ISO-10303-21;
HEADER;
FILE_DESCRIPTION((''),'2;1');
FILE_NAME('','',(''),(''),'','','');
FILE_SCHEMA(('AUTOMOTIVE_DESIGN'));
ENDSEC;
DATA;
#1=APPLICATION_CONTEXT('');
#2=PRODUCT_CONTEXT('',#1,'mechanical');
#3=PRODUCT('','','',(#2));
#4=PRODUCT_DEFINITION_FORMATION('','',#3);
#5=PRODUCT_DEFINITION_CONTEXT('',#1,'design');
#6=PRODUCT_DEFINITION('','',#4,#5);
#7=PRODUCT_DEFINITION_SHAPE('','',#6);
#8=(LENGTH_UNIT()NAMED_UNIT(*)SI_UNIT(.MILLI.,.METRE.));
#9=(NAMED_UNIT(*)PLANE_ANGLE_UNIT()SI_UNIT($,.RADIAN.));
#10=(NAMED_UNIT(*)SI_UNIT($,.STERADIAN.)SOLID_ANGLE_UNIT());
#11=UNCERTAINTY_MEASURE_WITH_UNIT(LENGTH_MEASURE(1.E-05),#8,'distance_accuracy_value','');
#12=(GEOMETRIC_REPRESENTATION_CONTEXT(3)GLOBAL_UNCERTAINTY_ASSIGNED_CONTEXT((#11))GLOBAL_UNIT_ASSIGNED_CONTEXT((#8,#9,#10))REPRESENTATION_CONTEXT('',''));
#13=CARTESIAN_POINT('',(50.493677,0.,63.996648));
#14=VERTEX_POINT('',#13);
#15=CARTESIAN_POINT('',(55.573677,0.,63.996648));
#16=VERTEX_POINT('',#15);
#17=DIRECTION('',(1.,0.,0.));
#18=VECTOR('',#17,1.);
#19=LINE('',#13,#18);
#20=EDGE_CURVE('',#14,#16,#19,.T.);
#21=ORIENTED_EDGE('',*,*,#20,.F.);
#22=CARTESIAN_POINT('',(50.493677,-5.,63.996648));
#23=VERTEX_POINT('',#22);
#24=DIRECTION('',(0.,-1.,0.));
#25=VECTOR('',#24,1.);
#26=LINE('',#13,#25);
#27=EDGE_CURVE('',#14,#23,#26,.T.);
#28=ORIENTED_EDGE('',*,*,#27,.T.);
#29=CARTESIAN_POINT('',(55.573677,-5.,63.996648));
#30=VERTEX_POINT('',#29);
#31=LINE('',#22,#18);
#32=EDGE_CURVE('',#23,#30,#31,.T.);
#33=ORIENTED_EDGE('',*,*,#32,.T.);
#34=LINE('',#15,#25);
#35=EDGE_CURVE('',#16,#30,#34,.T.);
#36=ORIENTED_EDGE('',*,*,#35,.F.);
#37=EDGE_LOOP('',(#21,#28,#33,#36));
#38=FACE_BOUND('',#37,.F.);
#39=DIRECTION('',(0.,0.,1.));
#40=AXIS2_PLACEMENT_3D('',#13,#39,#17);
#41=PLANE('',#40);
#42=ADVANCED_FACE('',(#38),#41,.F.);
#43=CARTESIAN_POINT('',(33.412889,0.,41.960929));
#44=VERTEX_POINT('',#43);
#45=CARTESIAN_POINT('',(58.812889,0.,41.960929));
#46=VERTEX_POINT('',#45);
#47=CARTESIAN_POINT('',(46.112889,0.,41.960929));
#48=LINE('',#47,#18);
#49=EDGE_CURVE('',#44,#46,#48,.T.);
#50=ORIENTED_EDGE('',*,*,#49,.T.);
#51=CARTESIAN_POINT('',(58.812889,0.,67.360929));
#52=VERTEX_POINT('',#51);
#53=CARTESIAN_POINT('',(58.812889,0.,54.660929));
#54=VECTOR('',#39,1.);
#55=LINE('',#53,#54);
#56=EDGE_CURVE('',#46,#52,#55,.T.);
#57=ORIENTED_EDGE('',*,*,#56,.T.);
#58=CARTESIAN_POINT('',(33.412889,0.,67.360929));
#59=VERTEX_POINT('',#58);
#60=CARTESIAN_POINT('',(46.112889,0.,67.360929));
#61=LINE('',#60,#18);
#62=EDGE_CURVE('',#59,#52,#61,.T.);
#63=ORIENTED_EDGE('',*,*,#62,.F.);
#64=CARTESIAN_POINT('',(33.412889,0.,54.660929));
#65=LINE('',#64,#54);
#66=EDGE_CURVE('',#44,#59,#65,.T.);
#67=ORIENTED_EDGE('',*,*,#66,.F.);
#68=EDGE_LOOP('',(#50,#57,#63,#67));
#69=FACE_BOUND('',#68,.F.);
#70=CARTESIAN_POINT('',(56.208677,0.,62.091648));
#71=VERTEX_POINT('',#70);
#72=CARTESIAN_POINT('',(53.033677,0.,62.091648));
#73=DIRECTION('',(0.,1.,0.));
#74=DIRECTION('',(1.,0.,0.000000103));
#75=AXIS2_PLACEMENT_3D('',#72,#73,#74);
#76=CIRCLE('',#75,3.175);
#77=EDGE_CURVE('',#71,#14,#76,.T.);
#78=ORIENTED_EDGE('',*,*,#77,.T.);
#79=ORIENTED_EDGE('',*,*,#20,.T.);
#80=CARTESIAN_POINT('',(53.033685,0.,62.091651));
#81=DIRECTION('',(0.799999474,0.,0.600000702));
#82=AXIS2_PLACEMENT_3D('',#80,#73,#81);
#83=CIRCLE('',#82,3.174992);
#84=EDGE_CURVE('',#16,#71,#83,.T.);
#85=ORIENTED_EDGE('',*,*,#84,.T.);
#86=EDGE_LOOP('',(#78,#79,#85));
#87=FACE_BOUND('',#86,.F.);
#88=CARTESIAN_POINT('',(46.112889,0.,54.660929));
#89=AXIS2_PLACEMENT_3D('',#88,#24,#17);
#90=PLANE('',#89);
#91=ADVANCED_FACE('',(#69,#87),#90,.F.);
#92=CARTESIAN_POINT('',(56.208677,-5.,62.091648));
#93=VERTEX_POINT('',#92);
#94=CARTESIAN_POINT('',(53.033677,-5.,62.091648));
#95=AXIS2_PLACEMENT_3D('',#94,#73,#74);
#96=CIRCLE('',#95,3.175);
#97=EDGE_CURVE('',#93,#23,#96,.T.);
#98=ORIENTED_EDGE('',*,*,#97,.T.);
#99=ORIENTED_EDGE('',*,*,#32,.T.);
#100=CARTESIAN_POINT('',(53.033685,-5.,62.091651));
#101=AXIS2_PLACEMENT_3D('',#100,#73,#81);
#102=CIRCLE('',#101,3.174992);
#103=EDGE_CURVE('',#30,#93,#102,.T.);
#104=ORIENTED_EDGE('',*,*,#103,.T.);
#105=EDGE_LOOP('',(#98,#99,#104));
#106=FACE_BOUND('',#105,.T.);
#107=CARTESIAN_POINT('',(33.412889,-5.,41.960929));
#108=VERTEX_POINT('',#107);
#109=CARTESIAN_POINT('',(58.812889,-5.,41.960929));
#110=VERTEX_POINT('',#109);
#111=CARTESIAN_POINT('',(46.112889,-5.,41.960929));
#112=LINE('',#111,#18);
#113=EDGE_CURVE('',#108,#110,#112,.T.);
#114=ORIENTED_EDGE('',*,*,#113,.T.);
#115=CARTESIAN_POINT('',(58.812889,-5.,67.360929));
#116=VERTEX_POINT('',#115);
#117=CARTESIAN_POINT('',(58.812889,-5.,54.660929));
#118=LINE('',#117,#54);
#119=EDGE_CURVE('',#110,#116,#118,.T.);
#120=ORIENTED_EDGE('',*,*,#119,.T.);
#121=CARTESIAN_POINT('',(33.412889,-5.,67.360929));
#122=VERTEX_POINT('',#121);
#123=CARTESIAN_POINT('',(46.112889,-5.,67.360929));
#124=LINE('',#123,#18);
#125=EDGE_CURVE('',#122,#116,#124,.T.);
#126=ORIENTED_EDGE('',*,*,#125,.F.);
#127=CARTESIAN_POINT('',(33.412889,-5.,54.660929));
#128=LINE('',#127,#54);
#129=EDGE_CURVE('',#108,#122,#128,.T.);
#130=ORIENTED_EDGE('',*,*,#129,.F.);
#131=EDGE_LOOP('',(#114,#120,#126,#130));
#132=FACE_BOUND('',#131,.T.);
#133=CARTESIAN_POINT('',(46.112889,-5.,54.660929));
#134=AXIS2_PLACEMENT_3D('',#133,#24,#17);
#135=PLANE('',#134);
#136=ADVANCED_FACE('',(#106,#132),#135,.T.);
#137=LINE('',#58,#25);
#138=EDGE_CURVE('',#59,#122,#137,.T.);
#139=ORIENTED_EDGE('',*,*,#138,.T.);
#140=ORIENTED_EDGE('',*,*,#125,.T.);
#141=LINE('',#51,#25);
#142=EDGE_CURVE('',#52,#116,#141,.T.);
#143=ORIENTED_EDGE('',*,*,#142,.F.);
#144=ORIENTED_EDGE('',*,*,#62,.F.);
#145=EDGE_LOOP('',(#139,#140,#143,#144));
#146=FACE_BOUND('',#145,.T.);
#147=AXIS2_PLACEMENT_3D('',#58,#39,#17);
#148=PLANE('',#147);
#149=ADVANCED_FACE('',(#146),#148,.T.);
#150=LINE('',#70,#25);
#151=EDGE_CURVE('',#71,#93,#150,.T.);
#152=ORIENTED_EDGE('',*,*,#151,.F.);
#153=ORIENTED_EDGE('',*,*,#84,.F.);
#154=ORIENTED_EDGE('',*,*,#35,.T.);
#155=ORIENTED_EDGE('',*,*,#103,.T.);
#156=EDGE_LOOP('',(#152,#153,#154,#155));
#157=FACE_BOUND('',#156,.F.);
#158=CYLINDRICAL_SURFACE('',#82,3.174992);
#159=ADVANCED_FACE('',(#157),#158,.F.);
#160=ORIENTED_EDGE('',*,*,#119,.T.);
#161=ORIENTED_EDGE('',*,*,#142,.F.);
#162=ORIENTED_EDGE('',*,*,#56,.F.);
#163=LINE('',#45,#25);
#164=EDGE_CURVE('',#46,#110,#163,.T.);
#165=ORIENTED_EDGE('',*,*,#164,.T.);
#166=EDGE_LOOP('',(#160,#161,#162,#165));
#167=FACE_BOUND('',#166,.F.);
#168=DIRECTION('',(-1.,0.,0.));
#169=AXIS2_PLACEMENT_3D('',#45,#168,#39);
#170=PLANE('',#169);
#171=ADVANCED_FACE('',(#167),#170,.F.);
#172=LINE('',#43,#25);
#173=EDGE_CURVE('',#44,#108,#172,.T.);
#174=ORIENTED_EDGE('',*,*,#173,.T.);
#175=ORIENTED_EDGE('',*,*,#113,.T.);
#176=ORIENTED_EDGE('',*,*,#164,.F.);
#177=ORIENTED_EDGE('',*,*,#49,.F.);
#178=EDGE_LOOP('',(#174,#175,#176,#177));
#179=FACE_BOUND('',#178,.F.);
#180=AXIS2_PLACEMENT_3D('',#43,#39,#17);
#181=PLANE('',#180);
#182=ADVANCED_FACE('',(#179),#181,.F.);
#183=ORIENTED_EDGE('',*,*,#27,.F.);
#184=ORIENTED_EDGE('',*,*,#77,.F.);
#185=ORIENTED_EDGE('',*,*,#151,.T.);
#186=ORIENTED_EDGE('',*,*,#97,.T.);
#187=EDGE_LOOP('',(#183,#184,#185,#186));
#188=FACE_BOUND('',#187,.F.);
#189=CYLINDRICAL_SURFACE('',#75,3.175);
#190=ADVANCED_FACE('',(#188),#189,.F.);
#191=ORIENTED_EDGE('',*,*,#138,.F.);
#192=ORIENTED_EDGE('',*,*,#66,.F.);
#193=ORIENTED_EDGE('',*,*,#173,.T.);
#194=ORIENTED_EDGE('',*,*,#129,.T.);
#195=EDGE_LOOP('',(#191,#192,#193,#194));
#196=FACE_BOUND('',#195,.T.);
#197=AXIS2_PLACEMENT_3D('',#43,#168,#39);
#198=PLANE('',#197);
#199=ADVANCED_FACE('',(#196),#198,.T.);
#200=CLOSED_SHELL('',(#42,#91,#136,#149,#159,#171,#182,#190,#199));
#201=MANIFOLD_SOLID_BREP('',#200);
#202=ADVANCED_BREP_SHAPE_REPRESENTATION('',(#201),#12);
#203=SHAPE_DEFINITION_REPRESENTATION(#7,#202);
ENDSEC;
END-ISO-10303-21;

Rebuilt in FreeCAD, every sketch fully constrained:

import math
import FreeCAD as App
import Part
import Sketcher
from FreeCAD import Vector
Q = App.Units.Quantity


def add_polygon(sketch, points):
    """Adds a closed chain of lines whose ends are joined by coincident constraints."""
    first, n = sketch.GeometryCount, len(points)
    for a, b in zip(points, points[1:] + points[:1]):
        sketch.addGeometry(Part.LineSegment(App.Vector(*a, 0), App.Vector(*b, 0)), False)
    for i in range(n):
        sketch.addConstraint(Sketcher.Constraint("Coincident", first + i, 2, first + (i + 1) % n, 1))

doc = App.newDocument("Part")
body = doc.addObject("PartDesign::Body", "Body")

# Sketch on XZ plane
sketch1 = body.newObject("Sketcher::SketchObject", "Sketch")
sketch1.AttachmentSupport = (doc.getObject("XZ_Plane"), [""])
sketch1.MapMode = "FlatFace"
add_polygon(sketch1, [(33.4, 67.4), (33.4, 42), (58.8, 42), (58.8, 67.4)])  # lines 0-3
sketch1.addGeometry(Part.ArcOfCircle(Part.Circle(Vector(53, 62.1, 0), Vector(0, 0, 1), 3.2), math.radians(143), math.radians(360)), False)  # 4
sketch1.addGeometry(Part.LineSegment(Vector(50.5, 64, 0), Vector(55.6, 64, 0)), False)  # 5
sketch1.addGeometry(Part.ArcOfCircle(Part.Circle(Vector(53, 62.1, 0), Vector(0, 0, 1), 3.2), math.radians(0), math.radians(37)), False)  # 6
sketch1.addConstraint(Sketcher.Constraint("Coincident", 4, 1, 5, 1))
sketch1.addConstraint(Sketcher.Constraint("Coincident", 5, 2, 6, 2))
sketch1.addConstraint(Sketcher.Constraint("Tangent", 6, 1, 4, 2))
sketch1.addConstraint(Sketcher.Constraint("Vertical", 0))
sketch1.addConstraint(Sketcher.Constraint("Horizontal", 1))
sketch1.addConstraint(Sketcher.Constraint("Vertical", 2))
sketch1.addConstraint(Sketcher.Constraint("Horizontal", 3))
sketch1.addConstraint(Sketcher.Constraint("Horizontal", 5))
sketch1.addConstraint(Sketcher.Constraint("Horizontal", 4, 3, 6, 1))
sketch1.addConstraint(Sketcher.Constraint("Equal", 3, 0))
sketch1.addConstraint(Sketcher.Constraint("DistanceX", 1, 1, 1, 2, Q("1 in")))
sketch1.addConstraint(Sketcher.Constraint("DistanceX", 5, 1, 5, 2, Q("0.2 in")))
sketch1.addConstraint(Sketcher.Constraint("Radius", 4, Q("0.125 in")))
sketch1.addConstraint(Sketcher.Constraint("DistanceX", 4, 1, 4, 3, Q("0.1 in")))
sketch1.addConstraint(Sketcher.Constraint("DistanceY", -1, 1, 6, 3, 62.091651))
sketch1.addConstraint(Sketcher.Constraint("DistanceX", -1, 1, 0, 2, 33.412889))
sketch1.addConstraint(Sketcher.Constraint("DistanceY", -1, 1, 0, 2, 41.960929))
sketch1.addConstraint(Sketcher.Constraint("DistanceX", 5, 2, 2, 2, 3.239212))
pad1 = body.newObject("PartDesign::Pad", "Pad")
pad1.Profile = sketch1
pad1.Length = 5

doc.recompute()
